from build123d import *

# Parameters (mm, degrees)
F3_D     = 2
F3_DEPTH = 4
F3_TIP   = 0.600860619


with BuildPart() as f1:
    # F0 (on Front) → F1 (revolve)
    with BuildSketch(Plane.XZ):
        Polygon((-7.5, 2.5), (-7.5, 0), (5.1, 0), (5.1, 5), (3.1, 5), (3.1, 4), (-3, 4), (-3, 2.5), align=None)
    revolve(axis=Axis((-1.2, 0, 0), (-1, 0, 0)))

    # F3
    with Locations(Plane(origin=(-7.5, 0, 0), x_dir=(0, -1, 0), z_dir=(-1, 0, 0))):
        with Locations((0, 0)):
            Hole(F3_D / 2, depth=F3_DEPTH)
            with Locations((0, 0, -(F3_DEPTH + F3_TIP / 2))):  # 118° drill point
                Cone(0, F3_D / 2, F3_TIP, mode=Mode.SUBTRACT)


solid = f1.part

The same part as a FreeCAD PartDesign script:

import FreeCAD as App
import Part
import Sketcher
Q = App.Units.Quantity

doc = App.newDocument("Part")
body = doc.addObject("PartDesign::Body", "Body")

sketch1 = body.newObject("Sketcher::SketchObject", "Sketch")
sketch1.AttachmentSupport = (doc.getObject("XZ_Plane"), [""])
sketch1.MapMode = "FlatFace"
sketch1.addGeometry([
    Part.LineSegment(App.Vector(-7.5, 2.5, 0), App.Vector(-7.5, 0, 0)),
    Part.LineSegment(App.Vector(-7.5, 0, 0), App.Vector(5.1, 0, 0)),
    Part.LineSegment(App.Vector(5.1, 0, 0), App.Vector(5.1, 5, 0)),
    Part.LineSegment(App.Vector(5.1, 5, 0), App.Vector(3.1, 5, 0)),
    Part.LineSegment(App.Vector(3.1, 5, 0), App.Vector(3.1, 4, 0)),
    Part.LineSegment(App.Vector(3.1, 4, 0), App.Vector(-3, 4, 0)),
    Part.LineSegment(App.Vector(-3, 4, 0), App.Vector(-3, 2.5, 0)),
    Part.LineSegment(App.Vector(-3, 2.5, 0), App.Vector(-7.5, 2.5, 0)),
], False)
sketch1.addConstraint([
    Sketcher.Constraint("Coincident", 0, 2, 1, 1),
    Sketcher.Constraint("Coincident", 1, 2, 2, 1),
    Sketcher.Constraint("Coincident", 2, 2, 3, 1),
    Sketcher.Constraint("Coincident", 3, 2, 4, 1),
    Sketcher.Constraint("Coincident", 4, 2, 5, 1),
    Sketcher.Constraint("Coincident", 5, 2, 6, 1),
    Sketcher.Constraint("Coincident", 6, 2, 7, 1),
    Sketcher.Constraint("Coincident", 7, 2, 0, 1),
    Sketcher.Constraint("Vertical", 0),
    Sketcher.Constraint("Horizontal", 1),
    Sketcher.Constraint("Vertical", 2),
    Sketcher.Constraint("Horizontal", 3),
    Sketcher.Constraint("Vertical", 4),
    Sketcher.Constraint("Horizontal", 5),
    Sketcher.Constraint("Vertical", 6),
    Sketcher.Constraint("Horizontal", 7),
    Sketcher.Constraint("PointOnObject", 0, 2, -1),
    Sketcher.Constraint("DistanceX", 3, 2, 3, 1, Q("2 mm")),
    Sketcher.Constraint("DistanceY", 2, 1, 2, 2, Q("5 mm")),
    Sketcher.Constraint("DistanceY", 4, 2, 4, 1, Q("1 mm")),
    Sketcher.Constraint("DistanceX", 1, 1, 1, 2, Q("12.6 mm")),
    Sketcher.Constraint("DistanceX", 5, 2, 5, 1, Q("6.1 mm")),
    Sketcher.Constraint("DistanceY", 0, 2, 0, 1, Q("2.5 mm")),
    Sketcher.Constraint("DistanceX", 5, 2, -1, 1, Q("3 mm")),
])
revolution = body.newObject("PartDesign::Revolution", "Revolution")
revolution.Profile = sketch1
revolution.ReferenceAxis = (sketch1, ["H_Axis"])
revolution.Angle = 360

sketch2 = body.newObject("Sketcher::SketchObject", "Sketch001")
sketch2.AttachmentSupport = (doc.getObject("YZ_Plane"), [""])
sketch2.MapMode = "FlatFace"
sketch2.AttachmentOffset = App.Placement(App.Vector(0, 0, -7.5), App.Rotation())
sketch2.addGeometry(Part.Circle(App.Vector(0, 0, 0), App.Vector(0, 0, 1), 1), False)
sketch2.addConstraint([
    Sketcher.Constraint("Coincident", 0, 3, -1, 1),
    Sketcher.Constraint("Diameter", 0, Q("2 mm")),
])
doc.recompute()
hole = body.newObject("PartDesign::Hole", "Hole")
hole.Profile = sketch2
hole.ThreadType = "None"
hole.Diameter = 2
hole.DepthType = "Dimension"
hole.Depth = 4
hole.DrillPoint = "Angled"
hole.DrillPointAngle = 118
hole.Reversed = True

doc.recompute()
